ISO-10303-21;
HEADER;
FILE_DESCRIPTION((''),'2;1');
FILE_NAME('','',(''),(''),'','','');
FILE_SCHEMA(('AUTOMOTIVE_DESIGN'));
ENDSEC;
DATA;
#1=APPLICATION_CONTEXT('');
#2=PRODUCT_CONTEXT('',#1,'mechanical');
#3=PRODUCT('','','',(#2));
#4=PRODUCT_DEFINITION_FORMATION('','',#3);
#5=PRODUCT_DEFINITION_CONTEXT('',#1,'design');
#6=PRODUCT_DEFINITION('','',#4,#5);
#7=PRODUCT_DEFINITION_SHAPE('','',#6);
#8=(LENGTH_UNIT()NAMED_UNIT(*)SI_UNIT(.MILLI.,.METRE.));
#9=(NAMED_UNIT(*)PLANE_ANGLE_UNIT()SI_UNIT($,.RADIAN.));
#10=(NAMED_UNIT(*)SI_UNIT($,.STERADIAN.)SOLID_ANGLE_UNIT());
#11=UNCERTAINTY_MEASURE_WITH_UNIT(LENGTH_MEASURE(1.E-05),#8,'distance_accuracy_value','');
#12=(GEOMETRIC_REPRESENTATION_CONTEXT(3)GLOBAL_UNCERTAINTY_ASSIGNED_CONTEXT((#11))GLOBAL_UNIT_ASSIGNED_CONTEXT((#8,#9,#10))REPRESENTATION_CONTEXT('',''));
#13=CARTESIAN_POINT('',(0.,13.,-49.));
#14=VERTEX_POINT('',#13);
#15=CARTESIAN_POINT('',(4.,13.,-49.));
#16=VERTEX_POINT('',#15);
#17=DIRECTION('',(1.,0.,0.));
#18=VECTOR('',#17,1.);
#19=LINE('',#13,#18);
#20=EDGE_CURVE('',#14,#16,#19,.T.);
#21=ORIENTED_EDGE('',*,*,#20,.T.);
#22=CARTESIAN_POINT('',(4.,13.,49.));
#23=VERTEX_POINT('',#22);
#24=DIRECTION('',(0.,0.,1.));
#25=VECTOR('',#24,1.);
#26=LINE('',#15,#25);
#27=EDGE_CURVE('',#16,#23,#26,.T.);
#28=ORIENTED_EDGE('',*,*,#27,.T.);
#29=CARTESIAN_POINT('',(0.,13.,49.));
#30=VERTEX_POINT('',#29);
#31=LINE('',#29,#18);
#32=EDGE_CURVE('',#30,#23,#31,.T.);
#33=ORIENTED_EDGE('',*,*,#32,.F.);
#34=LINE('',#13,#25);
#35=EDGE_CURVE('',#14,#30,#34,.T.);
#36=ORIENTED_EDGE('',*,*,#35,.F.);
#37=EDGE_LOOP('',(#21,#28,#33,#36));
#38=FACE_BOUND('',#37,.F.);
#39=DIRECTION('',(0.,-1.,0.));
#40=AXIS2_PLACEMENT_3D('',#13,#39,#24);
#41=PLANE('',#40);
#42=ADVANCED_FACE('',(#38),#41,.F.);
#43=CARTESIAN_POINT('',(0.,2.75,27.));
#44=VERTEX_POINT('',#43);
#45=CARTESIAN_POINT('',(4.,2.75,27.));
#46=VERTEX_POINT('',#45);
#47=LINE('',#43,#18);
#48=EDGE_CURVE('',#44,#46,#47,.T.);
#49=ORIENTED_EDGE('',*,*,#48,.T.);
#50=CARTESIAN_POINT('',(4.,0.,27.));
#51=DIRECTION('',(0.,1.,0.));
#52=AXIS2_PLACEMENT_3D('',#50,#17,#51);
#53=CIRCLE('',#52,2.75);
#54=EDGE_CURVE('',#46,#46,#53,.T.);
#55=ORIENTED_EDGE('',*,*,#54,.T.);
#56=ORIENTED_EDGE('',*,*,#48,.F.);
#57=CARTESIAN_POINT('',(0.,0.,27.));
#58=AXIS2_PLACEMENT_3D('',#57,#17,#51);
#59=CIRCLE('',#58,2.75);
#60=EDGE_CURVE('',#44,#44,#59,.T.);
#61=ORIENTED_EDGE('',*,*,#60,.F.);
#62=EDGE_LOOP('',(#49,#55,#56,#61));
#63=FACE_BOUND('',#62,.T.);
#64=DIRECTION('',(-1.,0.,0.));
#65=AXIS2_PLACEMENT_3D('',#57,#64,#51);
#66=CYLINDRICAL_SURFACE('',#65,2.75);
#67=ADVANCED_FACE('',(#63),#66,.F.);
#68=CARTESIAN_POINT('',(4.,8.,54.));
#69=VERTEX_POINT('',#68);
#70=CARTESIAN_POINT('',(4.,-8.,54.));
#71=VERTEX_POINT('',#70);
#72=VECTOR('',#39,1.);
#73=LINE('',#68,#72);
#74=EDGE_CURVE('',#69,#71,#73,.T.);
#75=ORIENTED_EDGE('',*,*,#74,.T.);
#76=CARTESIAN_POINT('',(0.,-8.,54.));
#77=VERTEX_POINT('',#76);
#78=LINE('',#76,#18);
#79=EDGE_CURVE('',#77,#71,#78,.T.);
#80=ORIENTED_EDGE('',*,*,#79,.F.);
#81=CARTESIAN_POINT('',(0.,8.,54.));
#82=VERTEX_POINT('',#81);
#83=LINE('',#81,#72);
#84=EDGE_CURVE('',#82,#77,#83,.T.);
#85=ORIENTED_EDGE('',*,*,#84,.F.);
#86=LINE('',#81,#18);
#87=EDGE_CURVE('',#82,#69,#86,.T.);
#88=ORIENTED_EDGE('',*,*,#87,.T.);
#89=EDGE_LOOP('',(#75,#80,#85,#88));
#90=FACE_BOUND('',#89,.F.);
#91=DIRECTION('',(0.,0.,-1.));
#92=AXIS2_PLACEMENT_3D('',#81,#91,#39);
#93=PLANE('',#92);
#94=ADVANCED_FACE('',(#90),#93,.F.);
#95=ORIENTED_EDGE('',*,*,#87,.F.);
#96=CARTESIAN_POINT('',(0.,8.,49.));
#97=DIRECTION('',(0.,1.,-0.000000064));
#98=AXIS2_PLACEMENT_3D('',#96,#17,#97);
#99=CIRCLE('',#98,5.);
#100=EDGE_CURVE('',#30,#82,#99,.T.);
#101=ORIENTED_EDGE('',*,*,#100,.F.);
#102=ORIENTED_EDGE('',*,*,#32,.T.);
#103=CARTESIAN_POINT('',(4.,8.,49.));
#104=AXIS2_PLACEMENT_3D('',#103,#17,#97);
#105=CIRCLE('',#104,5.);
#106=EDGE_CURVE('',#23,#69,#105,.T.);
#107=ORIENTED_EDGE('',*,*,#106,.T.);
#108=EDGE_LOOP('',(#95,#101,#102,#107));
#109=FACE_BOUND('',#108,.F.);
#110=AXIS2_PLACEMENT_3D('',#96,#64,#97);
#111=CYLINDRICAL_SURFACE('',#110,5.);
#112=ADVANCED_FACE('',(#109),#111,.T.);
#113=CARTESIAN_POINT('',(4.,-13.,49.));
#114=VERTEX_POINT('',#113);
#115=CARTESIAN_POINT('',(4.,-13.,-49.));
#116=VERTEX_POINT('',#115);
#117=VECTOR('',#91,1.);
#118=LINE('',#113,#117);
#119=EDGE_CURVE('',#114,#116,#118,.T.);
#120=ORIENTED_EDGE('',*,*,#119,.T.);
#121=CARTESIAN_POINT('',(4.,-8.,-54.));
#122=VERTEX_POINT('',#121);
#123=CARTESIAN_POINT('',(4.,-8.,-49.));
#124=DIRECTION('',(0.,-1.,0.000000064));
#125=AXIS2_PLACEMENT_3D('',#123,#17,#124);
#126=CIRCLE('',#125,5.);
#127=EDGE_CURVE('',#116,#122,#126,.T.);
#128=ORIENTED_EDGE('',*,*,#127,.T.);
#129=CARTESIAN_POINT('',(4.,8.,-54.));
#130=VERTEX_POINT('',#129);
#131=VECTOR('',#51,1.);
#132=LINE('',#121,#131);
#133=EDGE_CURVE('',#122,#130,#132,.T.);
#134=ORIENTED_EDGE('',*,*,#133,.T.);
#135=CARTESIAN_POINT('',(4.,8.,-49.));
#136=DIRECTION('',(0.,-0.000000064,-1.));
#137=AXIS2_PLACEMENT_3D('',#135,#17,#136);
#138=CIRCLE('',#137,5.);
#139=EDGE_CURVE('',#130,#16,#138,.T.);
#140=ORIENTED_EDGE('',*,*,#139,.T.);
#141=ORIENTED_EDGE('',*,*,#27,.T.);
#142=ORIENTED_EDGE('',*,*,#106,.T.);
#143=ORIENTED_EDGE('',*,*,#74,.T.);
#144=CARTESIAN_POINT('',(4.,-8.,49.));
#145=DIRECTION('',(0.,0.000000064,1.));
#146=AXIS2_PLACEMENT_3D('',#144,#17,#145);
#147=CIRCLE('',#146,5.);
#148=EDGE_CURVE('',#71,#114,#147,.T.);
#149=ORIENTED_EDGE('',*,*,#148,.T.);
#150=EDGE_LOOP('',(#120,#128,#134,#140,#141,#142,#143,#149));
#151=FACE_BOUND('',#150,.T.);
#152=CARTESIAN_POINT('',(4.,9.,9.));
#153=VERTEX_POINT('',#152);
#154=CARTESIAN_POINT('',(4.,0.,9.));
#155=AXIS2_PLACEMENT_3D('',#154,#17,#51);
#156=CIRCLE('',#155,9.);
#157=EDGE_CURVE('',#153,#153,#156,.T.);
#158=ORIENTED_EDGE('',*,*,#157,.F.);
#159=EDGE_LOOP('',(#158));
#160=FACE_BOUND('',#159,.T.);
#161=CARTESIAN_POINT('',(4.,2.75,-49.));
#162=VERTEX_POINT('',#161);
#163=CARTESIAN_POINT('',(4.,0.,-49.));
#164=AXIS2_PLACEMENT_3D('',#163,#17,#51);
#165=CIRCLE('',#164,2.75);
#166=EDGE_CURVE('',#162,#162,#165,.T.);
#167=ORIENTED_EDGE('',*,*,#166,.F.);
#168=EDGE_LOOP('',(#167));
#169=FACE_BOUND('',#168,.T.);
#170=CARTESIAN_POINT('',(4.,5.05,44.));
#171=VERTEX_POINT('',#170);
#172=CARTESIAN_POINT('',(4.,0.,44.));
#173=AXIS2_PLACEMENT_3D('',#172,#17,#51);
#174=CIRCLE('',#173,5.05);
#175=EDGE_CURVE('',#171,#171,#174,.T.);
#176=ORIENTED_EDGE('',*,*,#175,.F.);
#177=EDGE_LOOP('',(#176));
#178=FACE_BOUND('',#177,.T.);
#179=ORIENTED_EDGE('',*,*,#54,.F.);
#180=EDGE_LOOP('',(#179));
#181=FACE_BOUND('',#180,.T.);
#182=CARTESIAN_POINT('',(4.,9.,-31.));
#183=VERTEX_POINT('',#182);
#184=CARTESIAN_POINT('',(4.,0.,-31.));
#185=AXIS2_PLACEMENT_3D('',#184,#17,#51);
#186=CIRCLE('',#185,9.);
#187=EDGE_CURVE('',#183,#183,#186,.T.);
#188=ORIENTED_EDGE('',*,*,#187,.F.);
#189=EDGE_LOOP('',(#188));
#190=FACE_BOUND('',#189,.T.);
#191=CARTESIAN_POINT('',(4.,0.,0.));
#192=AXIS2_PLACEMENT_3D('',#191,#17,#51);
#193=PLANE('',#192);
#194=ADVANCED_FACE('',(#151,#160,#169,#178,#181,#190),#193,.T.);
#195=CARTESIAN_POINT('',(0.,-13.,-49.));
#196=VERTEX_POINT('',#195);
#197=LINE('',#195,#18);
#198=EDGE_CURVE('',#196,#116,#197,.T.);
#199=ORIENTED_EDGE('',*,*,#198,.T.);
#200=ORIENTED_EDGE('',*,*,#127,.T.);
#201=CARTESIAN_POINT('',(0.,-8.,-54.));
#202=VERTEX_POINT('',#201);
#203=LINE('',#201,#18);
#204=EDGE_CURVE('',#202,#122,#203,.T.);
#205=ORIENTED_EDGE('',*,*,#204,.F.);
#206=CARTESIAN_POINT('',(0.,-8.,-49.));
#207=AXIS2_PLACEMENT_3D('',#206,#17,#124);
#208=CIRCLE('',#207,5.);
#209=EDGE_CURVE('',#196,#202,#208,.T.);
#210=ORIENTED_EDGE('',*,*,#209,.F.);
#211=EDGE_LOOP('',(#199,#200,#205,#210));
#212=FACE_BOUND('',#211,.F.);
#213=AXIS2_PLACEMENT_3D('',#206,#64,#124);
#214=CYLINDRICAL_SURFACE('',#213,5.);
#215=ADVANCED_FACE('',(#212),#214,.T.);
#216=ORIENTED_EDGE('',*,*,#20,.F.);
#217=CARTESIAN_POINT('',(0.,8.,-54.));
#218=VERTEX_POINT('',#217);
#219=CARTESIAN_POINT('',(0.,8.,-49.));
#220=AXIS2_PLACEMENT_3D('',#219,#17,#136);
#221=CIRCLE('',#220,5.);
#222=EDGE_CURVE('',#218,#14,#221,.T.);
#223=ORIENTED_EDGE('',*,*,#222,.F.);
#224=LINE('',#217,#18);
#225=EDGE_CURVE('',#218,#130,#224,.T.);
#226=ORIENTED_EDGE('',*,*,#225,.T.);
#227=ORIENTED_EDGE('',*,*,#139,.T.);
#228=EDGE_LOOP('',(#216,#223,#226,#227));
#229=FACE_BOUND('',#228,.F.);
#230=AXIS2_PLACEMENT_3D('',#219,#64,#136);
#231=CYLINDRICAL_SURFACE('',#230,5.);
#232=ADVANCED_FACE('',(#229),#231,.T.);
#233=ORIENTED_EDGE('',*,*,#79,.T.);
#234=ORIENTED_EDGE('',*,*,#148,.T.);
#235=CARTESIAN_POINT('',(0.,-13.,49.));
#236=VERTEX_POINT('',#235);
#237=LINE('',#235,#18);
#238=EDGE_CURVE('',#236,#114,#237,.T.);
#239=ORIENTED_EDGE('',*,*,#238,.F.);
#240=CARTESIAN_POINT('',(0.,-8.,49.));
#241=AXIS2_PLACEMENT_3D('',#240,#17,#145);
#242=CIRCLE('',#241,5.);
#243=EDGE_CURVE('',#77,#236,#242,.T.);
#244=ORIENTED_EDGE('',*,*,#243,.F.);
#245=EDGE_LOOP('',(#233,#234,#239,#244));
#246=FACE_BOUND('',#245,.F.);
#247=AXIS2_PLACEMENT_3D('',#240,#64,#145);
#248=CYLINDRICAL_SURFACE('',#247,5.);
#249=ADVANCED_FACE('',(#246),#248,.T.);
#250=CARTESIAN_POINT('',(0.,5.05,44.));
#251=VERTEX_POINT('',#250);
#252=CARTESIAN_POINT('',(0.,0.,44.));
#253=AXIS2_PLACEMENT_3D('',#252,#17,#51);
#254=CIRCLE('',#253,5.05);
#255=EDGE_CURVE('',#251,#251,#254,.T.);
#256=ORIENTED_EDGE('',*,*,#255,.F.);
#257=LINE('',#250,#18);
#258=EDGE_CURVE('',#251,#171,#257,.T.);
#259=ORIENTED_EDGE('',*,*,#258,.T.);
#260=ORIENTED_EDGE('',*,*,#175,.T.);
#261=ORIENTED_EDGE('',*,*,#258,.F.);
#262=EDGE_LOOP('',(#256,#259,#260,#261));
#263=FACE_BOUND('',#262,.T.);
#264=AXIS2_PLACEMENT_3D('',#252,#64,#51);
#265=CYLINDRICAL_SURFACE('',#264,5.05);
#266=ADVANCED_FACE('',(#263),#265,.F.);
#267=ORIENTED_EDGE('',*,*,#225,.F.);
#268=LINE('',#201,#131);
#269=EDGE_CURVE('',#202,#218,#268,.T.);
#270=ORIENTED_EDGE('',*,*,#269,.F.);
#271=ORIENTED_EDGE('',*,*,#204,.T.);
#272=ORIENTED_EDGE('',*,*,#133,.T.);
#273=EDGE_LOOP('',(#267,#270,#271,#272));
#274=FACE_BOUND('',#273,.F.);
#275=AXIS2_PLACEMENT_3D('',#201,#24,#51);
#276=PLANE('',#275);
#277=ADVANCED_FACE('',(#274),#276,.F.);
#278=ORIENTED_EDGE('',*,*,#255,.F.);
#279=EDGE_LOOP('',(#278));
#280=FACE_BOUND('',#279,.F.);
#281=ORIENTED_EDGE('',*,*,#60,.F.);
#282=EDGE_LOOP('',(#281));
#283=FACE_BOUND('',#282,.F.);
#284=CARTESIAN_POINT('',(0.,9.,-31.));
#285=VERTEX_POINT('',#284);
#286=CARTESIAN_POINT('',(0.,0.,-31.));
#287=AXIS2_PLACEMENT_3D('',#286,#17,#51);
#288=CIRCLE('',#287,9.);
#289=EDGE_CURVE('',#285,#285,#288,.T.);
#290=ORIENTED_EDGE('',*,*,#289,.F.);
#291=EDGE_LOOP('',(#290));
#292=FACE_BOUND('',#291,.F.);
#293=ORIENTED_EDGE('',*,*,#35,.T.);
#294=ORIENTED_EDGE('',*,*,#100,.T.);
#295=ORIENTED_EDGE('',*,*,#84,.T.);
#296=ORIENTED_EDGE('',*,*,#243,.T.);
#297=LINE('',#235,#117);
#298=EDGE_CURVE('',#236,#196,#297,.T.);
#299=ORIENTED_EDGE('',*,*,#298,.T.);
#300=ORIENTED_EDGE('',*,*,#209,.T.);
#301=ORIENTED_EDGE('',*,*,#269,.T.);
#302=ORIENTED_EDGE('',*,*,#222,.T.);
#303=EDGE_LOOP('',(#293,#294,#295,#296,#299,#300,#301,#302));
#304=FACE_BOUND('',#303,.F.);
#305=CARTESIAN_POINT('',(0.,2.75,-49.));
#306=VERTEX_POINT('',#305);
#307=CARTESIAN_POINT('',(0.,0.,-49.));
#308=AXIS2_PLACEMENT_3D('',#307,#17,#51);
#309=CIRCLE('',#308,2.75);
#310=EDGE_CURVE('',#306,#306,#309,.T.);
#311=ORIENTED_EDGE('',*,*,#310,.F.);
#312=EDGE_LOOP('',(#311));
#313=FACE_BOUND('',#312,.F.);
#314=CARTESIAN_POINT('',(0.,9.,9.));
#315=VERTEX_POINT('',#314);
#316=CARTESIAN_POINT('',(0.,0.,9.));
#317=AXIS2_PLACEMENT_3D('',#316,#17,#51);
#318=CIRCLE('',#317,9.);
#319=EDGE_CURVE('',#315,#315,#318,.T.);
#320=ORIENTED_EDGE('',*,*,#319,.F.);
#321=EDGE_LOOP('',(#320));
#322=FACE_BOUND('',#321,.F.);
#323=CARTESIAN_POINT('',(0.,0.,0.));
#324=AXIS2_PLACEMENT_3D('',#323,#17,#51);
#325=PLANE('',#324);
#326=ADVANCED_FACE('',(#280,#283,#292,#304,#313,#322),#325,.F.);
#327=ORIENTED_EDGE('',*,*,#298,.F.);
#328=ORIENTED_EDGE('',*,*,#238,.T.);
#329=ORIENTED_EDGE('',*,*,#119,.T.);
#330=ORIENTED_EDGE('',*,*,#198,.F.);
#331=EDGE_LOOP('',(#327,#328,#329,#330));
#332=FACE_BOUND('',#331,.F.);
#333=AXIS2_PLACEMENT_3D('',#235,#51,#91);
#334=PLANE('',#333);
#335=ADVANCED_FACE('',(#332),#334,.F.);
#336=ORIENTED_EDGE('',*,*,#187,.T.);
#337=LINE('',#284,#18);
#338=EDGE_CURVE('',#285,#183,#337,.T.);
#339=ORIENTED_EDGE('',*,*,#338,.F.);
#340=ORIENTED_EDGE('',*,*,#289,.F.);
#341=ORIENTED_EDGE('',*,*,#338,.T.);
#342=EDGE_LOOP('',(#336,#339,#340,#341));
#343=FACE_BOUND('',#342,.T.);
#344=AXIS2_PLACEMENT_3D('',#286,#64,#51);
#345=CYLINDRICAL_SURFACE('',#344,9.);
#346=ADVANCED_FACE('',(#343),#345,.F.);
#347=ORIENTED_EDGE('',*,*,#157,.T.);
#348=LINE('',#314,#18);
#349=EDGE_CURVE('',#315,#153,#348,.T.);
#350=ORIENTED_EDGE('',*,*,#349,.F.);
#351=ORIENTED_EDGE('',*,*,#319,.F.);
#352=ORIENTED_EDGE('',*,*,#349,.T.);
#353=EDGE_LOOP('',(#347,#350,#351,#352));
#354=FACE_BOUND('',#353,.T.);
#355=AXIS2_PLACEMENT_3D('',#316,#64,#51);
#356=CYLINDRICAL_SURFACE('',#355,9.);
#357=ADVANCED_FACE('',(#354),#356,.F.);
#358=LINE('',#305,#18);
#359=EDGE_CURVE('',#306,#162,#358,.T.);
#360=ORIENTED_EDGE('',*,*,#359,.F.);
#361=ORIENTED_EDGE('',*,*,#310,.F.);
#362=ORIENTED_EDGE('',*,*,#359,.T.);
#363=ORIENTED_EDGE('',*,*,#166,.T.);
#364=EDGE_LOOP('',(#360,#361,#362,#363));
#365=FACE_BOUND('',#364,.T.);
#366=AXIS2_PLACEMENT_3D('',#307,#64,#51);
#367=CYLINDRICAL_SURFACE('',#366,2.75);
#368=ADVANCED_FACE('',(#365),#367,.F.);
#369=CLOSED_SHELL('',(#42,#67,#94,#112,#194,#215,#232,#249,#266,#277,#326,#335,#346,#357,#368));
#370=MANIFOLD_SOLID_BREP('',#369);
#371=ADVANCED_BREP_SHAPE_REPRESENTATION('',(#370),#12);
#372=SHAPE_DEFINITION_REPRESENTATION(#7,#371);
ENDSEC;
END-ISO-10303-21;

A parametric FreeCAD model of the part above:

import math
import FreeCAD as App
import Part
import Sketcher
Q = App.Units.Quantity

doc = App.newDocument("Part")
body = doc.addObject("PartDesign::Body", "Body")

# Sketch on YZ plane
sketch1 = body.newObject("Sketcher::SketchObject", "Sketch")
sketch1.AttachmentSupport = (doc.getObject("YZ_Plane"), [""])
sketch1.MapMode = "FlatFace"
sketch1.addGeometry(Part.LineSegment(App.Vector(-8, -54, 0), App.Vector(8, -54, 0)), False)
sketch1.addGeometry(Part.ArcOfCircle(Part.Circle(App.Vector(8, -49, 0), App.Vector(0, 0, 1), 5), math.radians(-90.000004), math.radians(0.000004)), False)
sketch1.addGeometry(Part.LineSegment(App.Vector(13, -49, 0), App.Vector(13, 49, 0)), False)
sketch1.addGeometry(Part.ArcOfCircle(Part.Circle(App.Vector(8, 49, 0), App.Vector(0, 0, 1), 5), math.radians(-0.000004), math.radians(90.000004)), False)
sketch1.addGeometry(Part.LineSegment(App.Vector(8, 54, 0), App.Vector(-8, 54, 0)), False)
sketch1.addGeometry(Part.ArcOfCircle(Part.Circle(App.Vector(-8, 49, 0), App.Vector(0, 0, 1), 5), math.radians(89.999996), math.radians(180.000004)), False)
sketch1.addGeometry(Part.LineSegment(App.Vector(-13, 49, 0), App.Vector(-13, -49, 0)), False)
sketch1.addGeometry(Part.ArcOfCircle(Part.Circle(App.Vector(-8, -49, 0), App.Vector(0, 0, 1), 5), math.radians(179.999996), math.radians(270.000004)), False)
sketch1.addGeometry(Part.Circle(App.Vector(0, -49, 0), App.Vector(0, 0, 1), 2.75), False)
sketch1.addGeometry(Part.Circle(App.Vector(0, -31, 0), App.Vector(0, 0, 1), 9), False)
sketch1.addGeometry(Part.Circle(App.Vector(0, 9, 0), App.Vector(0, 0, 1), 9), False)
sketch1.addGeometry(Part.Circle(App.Vector(0, 27, 0), App.Vector(0, 0, 1), 2.75), False)
sketch1.addGeometry(Part.Circle(App.Vector(0, 44, 0), App.Vector(0, 0, 1), 5.05), False)
sketch1.addConstraint(Sketcher.Constraint("Tangent", 0, 2, 1, 1))
sketch1.addConstraint(Sketcher.Constraint("Tangent", 1, 2, 2, 1))
sketch1.addConstraint(Sketcher.Constraint("Tangent", 2, 2, 3, 1))
sketch1.addConstraint(Sketcher.Constraint("Tangent", 3, 2, 4, 1))
sketch1.addConstraint(Sketcher.Constraint("Tangent", 4, 2, 5, 1))
sketch1.addConstraint(Sketcher.Constraint("Tangent", 5, 2, 6, 1))
sketch1.addConstraint(Sketcher.Constraint("Tangent", 6, 2, 7, 1))
sketch1.addConstraint(Sketcher.Constraint("Tangent", 7, 2, 0, 1))
sketch1.addConstraint(Sketcher.Constraint("Horizontal", 0))
sketch1.addConstraint(Sketcher.Constraint("Vertical", 2))
sketch1.addConstraint(Sketcher.Constraint("Horizontal", 4))
sketch1.addConstraint(Sketcher.Constraint("Vertical", 6))
sketch1.addConstraint(Sketcher.Constraint("Equal", 1, 3))
sketch1.addConstraint(Sketcher.Constraint("Equal", 3, 5))
sketch1.addConstraint(Sketcher.Constraint("Equal", 5, 7))
sketch1.addConstraint(Sketcher.Constraint("Equal", 9, 10))
sketch1.addConstraint(Sketcher.Constraint("Equal", 8, 11))
sketch1.addConstraint(Sketcher.Constraint("Symmetric", 1, 3, 5, 3, -1, 1))
sketch1.addConstraint(Sketcher.Constraint("PointOnObject", 8, 3, -2))
sketch1.addConstraint(Sketcher.Constraint("PointOnObject", 9, 3, -2))
sketch1.addConstraint(Sketcher.Constraint("PointOnObject", 10, 3, -2))
sketch1.addConstraint(Sketcher.Constraint("PointOnObject", 11, 3, -2))
sketch1.addConstraint(Sketcher.Constraint("PointOnObject", 12, 3, -2))
sketch1.addConstraint(Sketcher.Constraint("Horizontal", 7, 3, 8, 3))
sketch1.addConstraint(Sketcher.Constraint("Diameter", 9, Q("18 mm")))
sketch1.addConstraint(Sketcher.Constraint("Radius", 1, Q("5 mm")))
sketch1.addConstraint(Sketcher.Constraint("Diameter", 8, Q("5.5 mm")))
sketch1.addConstraint(Sketcher.Constraint("Diameter", 12, Q("10.1 mm")))
sketch1.addConstraint(Sketcher.Constraint("DistanceX", 0, 1, 0, 2, Q("16 mm")))
sketch1.addConstraint(Sketcher.Constraint("DistanceY", 2, 1, 2, 2, Q("98 mm")))
sketch1.addConstraint(Sketcher.Constraint("DistanceY", 9, 3, -1, 1, Q("31 mm")))
sketch1.addConstraint(Sketcher.Constraint("DistanceY", -1, 1, 10, 3, Q("9 mm")))
sketch1.addConstraint(Sketcher.Constraint("DistanceY", -1, 1, 11, 3, Q("27 mm")))
sketch1.addConstraint(Sketcher.Constraint("DistanceY", -1, 1, 12, 3, Q("44 mm")))
pad1 = body.newObject("PartDesign::Pad", "Pad")
pad1.Profile = sketch1
pad1.Length = 4

doc.recompute()
